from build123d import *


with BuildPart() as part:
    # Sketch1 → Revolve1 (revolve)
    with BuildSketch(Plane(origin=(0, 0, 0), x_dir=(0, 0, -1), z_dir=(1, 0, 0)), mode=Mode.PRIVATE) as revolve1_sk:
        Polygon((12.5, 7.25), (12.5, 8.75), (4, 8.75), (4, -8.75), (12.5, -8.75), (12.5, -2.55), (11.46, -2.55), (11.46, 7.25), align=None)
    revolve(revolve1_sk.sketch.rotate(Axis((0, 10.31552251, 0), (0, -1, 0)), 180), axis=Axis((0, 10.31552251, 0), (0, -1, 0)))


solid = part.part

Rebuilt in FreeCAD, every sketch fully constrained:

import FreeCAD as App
import Part
import Sketcher


def add_polygon(sketch, points):
    """Adds a closed chain of lines whose ends are joined by coincident constraints."""
    first, n = sketch.GeometryCount, len(points)
    for a, b in zip(points, points[1:] + points[:1]):
        sketch.addGeometry(Part.LineSegment(App.Vector(*a, 0), App.Vector(*b, 0)), False)
    for i in range(n):
        sketch.addConstraint(Sketcher.Constraint("Coincident", first + i, 2, first + (i + 1) % n, 1))

doc = App.newDocument("Part")
body = doc.addObject("PartDesign::Body", "Body")

sketch1 = body.newObject("Sketcher::SketchObject", "Sketch")
sketch1.AttachmentSupport = (doc.getObject("YZ_Plane"), [""])
sketch1.MapMode = "FlatFace"
add_polygon(sketch1, [(7.2, -12.5), (8.8, -12.5), (8.8, -4), (-8.8, -4), (-8.8, -12.5), (-2.5, -12.5), (-2.5, -11.5), (7.2, -11.5)])
sketch1.addConstraint([
    Sketcher.Constraint("Horizontal", 0),
    Sketcher.Constraint("Vertical", 1),
    Sketcher.Constraint("Horizontal", 2),
    Sketcher.Constraint("Vertical", 3),
    Sketcher.Constraint("Horizontal", 4),
    Sketcher.Constraint("Vertical", 5),
    Sketcher.Constraint("Horizontal", 6),
    Sketcher.Constraint("Vertical", 7),
    Sketcher.Constraint("Symmetric", 0, 2, 3, 2, -2),
    Sketcher.Constraint("DistanceX", 0, 1, 0, 2, 1.5),
    Sketcher.Constraint("DistanceX", 2, 2, 2, 1, 17.5),
    Sketcher.Constraint("DistanceX", 4, 1, 4, 2, 6.2),
    Sketcher.Constraint("DistanceY", 1, 1, 1, 2, 8.5),
    Sketcher.Constraint("DistanceY", 1, 2, -1, 1, 4.0),
    Sketcher.Constraint("DistanceY", 5, 1, 5, 2, 1.04),
])
revolution = body.newObject("PartDesign::Revolution", "Revolution")
revolution.Profile = sketch1
revolution.ReferenceAxis = (sketch1, ["H_Axis"])
revolution.Angle = 360

doc.recompute()
